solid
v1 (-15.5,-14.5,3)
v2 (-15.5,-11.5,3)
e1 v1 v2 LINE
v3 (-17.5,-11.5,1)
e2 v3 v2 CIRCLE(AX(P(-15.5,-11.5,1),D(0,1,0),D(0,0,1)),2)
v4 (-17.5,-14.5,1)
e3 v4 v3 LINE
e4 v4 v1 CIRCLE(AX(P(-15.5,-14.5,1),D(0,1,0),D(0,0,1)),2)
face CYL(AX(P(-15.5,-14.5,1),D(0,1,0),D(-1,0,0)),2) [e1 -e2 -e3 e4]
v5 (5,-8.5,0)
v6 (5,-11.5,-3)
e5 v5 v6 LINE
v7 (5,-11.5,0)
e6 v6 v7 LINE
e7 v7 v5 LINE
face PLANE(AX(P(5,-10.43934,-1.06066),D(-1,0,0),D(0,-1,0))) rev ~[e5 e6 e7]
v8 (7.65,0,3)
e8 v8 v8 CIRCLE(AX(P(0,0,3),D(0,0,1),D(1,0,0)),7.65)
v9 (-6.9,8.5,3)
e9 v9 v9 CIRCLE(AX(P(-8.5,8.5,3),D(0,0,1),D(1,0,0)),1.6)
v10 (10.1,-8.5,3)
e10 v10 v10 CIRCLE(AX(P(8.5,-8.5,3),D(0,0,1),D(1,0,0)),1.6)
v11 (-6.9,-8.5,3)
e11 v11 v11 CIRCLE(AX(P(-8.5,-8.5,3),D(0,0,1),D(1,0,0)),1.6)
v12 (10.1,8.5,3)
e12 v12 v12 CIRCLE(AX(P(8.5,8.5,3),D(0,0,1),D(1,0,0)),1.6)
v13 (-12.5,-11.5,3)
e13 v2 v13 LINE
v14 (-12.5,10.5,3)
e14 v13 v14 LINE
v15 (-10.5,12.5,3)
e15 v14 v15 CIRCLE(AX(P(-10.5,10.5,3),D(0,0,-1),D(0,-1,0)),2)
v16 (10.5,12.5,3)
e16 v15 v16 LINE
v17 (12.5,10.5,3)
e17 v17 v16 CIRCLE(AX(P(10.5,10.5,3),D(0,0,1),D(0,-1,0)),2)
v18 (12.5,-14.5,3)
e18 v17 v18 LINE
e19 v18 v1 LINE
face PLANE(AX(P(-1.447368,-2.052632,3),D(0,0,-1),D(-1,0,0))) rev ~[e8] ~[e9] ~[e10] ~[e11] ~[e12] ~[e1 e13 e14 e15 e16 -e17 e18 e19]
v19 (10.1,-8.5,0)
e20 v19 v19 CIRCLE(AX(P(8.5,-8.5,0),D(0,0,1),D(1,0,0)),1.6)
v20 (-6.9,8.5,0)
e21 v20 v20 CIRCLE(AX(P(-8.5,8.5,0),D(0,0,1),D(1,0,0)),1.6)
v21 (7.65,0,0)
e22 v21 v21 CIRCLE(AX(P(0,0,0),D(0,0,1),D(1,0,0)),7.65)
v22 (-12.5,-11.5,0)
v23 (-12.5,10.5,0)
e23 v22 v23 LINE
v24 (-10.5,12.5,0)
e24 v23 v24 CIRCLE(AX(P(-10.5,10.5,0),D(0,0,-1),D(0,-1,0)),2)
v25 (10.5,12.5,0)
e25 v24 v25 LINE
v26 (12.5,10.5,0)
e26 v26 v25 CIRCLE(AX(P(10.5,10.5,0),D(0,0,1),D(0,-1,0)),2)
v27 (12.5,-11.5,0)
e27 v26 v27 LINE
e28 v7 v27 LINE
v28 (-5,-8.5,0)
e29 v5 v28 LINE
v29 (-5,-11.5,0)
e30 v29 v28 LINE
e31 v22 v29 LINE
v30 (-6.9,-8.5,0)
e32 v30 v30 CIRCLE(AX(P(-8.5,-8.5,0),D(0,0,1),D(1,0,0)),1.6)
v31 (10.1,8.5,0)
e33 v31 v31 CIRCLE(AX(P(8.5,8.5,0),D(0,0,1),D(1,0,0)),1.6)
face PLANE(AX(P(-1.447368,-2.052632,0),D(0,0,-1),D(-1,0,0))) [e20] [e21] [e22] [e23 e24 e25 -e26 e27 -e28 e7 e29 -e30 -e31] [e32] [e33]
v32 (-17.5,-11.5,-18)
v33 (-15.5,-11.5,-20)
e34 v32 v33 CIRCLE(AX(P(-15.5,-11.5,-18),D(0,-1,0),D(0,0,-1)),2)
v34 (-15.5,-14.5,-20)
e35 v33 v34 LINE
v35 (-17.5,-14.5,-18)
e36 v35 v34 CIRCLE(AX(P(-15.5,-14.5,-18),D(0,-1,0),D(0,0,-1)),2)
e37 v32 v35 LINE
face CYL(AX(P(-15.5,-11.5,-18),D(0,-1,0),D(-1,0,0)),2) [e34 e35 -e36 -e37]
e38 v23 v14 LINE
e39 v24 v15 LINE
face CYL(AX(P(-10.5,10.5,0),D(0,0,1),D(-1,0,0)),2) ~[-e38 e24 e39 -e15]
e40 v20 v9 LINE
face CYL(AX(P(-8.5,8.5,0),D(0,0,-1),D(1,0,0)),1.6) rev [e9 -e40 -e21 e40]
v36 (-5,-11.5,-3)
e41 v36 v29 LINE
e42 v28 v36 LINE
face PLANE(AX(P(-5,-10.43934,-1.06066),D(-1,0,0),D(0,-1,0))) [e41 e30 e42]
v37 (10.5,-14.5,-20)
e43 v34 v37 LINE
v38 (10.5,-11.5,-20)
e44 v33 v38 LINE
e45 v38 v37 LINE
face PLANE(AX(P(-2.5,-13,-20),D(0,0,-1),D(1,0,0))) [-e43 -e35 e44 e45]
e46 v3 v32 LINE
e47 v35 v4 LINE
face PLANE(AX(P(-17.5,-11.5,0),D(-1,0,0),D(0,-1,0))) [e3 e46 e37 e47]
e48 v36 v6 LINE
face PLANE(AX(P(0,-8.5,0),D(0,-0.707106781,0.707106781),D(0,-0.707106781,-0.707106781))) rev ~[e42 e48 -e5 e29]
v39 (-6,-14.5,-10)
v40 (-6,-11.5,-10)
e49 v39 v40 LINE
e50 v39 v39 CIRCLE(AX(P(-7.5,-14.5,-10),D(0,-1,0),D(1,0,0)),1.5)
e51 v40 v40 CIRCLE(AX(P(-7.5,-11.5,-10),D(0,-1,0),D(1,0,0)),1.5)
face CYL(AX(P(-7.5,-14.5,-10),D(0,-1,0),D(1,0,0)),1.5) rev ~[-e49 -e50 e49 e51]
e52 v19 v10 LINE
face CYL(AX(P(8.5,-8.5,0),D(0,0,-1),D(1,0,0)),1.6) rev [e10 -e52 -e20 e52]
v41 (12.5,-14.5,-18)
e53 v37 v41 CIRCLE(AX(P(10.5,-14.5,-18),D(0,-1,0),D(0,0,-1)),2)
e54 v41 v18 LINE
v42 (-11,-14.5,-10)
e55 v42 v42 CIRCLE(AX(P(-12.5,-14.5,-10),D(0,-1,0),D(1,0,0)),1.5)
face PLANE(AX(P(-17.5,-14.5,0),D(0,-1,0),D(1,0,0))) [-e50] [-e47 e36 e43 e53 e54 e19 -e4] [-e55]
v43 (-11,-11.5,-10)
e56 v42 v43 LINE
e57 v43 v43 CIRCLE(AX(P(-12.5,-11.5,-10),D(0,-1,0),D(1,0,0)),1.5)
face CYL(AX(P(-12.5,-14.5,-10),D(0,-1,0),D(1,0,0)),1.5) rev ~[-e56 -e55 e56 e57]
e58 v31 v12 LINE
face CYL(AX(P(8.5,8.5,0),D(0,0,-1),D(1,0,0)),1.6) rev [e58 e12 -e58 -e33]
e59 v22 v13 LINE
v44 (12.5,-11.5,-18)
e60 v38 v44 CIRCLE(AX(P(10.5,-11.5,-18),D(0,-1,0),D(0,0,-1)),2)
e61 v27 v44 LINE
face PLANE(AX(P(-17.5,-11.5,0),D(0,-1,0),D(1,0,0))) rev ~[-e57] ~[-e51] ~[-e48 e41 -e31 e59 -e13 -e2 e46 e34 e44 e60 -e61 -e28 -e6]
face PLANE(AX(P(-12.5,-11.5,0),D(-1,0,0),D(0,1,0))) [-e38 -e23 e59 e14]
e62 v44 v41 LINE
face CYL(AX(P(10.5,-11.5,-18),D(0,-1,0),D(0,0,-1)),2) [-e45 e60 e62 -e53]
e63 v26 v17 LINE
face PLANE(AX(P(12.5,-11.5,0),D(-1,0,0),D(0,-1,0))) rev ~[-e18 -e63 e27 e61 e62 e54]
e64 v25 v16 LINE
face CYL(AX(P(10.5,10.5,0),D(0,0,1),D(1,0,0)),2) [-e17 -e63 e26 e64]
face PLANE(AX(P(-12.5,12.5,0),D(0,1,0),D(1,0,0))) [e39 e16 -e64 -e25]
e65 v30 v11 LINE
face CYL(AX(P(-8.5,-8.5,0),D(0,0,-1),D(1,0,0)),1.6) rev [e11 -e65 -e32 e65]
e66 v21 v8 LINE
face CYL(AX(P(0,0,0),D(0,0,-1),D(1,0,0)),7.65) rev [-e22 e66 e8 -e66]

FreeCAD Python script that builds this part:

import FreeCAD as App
import Part
import Sketcher

V = App.Vector


def edges_at(feature, points):
    """Names of the edges that pass closest to the given points."""
    edges = feature.Shape.Edges
    near = lambda p: min(range(len(edges)), key=lambda i: edges[i].distToShape(Part.Vertex(*p))[0])
    return sorted({f"Edge{near(p) + 1}" for p in points})

doc = App.newDocument("Part")
params = doc.addObject("Spreadsheet::Sheet", "Params")
for row, (alias, value) in enumerate([
    ("sketch1_diameter", "3.2 mm"),
    ("sketch1_diameter2", "15.3 mm"),
    ("sketch1_width", "5 mm"),
    ("sketch1_width2", "30 mm"),
    ("sketch1_height", "24 mm"),
    ("pad1_length", "3 mm"),
    ("sketch2_width", "30 mm"),
    ("sketch2_height", "3 mm"),
    ("pad2_length", "20 mm"),
    ("sketch3_diameter", "3 mm"),
    ("sketch4_width", "3 mm"),
    ("pad3_length", "10 mm"),
    ("fillet_radius", "2 mm"),
    ("fillet2_radius", "2 mm"),
    ("fillet3_radius", "2 mm"),
], start=1):
    params.set(f"A{row}", alias)
    params.set(f"B{row}", "=" + value)
    params.setAlias(f"B{row}", alias)

body = doc.addObject("PartDesign::Body", "Body")

# Sketch on XY plane
sketch1 = body.newObject("Sketcher::SketchObject", "Sketch")
sketch1.AttachmentSupport = (doc.getObject("XY_Plane"), [""])
sketch1.MapMode = "FlatFace"
sketch1.addGeometry([
    Part.LineSegment(V(-12.5, 12.5, 0), V(-12.5, -11.5, 0)),  # 0
    Part.LineSegment(V(-12.5, -11.5, 0), V(-17.5, -11.5, 0)),  # 1
    Part.LineSegment(V(-17.5, -11.5, 0), V(-17.5, -14.5, 0)),  # 2
    Part.LineSegment(V(-17.5, -14.5, 0), V(12.5, -14.5, 0)),  # 3
    Part.LineSegment(V(12.5, -14.5, 0), V(12.5, 12.5, 0)),  # 4
    Part.LineSegment(V(12.5, 12.5, 0), V(-12.5, 12.5, 0)),  # 5
    Part.Circle(V(8.5, -8.5, 0), V(0, 0, 1), 1.6),  # 6
    Part.Circle(V(-8.5, -8.5, 0), V(0, 0, 1), 1.6),  # 7
    Part.Circle(V(8.5, 8.5, 0), V(0, 0, 1), 1.6),  # 8
    Part.Circle(V(0, 0, 0), V(0, 0, 1), 7.7),  # 9
    Part.Circle(V(-8.5, 8.5, 0), V(0, 0, 1), 1.6),  # 10
], False)
sketch1.addConstraint([
    Sketcher.Constraint("Coincident", 0, 2, 1, 1),
    Sketcher.Constraint("Coincident", 1, 2, 2, 1),
    Sketcher.Constraint("Coincident", 2, 2, 3, 1),
    Sketcher.Constraint("Coincident", 3, 2, 4, 1),
    Sketcher.Constraint("Coincident", 4, 2, 5, 1),
    Sketcher.Constraint("Coincident", 5, 2, 0, 1),
    Sketcher.Constraint("Vertical", 0),
    Sketcher.Constraint("Horizontal", 1),
    Sketcher.Constraint("Vertical", 2),
    Sketcher.Constraint("Horizontal", 3),
    Sketcher.Constraint("Vertical", 4),
    Sketcher.Constraint("Horizontal", 5),
    Sketcher.Constraint("Coincident", 9, 3, -1, 1),
    Sketcher.Constraint("Equal", 6, 7),
    Sketcher.Constraint("Equal", 7, 8),
    Sketcher.Constraint("Equal", 8, 10),
    Sketcher.Constraint("Symmetric", 7, 3, 8, 3, -1, 1),
    Sketcher.Constraint("Symmetric", 6, 3, 10, 3, -1, 1),
    Sketcher.Constraint("Symmetric", 6, 3, 7, 3, -2),
    Sketcher.Constraint("Diameter", 6, 3.2),
    Sketcher.Constraint("Diameter", 9, 15.3),
    Sketcher.Constraint("DistanceX", 1, 2, 1, 1, 5.0),
    Sketcher.Constraint("DistanceX", 3, 1, 3, 2, 30.0),
    Sketcher.Constraint("DistanceY", 0, 2, 0, 1, 24.0),
    Sketcher.Constraint("DistanceY", 2, 2, 2, 1, 3.0),
    Sketcher.Constraint("DistanceX", 7, 3, 6, 3, 17.0),
    Sketcher.Constraint("DistanceY", 6, 3, 8, 3, 17.0),
    Sketcher.Constraint("DistanceX", 0, 2, 7, 3, 4.0),
    Sketcher.Constraint("DistanceY", 0, 2, 7, 3, 3.0),
])
sketch1.setExpression("Constraints[19]", "Params.sketch1_diameter")
sketch1.setExpression("Constraints[20]", "Params.sketch1_diameter2")
sketch1.setExpression("Constraints[21]", "Params.sketch1_width")
sketch1.setExpression("Constraints[22]", "Params.sketch1_width2")
sketch1.setExpression("Constraints[23]", "Params.sketch1_height")
pad1 = body.newObject("PartDesign::Pad", "Pad")
pad1.Profile = sketch1
pad1.setExpression("Length", "Params.pad1_length")

# Sketch on XY plane
sketch2 = body.newObject("Sketcher::SketchObject", "Sketch001")
sketch2.AttachmentSupport = (doc.getObject("XY_Plane"), [""])
sketch2.MapMode = "FlatFace"
sketch2.addGeometry([
    Part.LineSegment(V(-17.5, -14.5, 0), V(-17.5, -11.5, 0)),
    Part.LineSegment(V(-17.5, -11.5, 0), V(12.5, -11.5, 0)),
    Part.LineSegment(V(12.5, -11.5, 0), V(12.5, -14.5, 0)),
    Part.LineSegment(V(12.5, -14.5, 0), V(-17.5, -14.5, 0)),
], False)
sketch2.addConstraint([
    Sketcher.Constraint("Coincident", 0, 2, 1, 1),
    Sketcher.Constraint("Coincident", 1, 2, 2, 1),
    Sketcher.Constraint("Coincident", 2, 2, 3, 1),
    Sketcher.Constraint("Coincident", 3, 2, 0, 1),
    Sketcher.Constraint("Vertical", 0),
    Sketcher.Constraint("Horizontal", 1),
    Sketcher.Constraint("Vertical", 2),
    Sketcher.Constraint("Horizontal", 3),
    Sketcher.Constraint("DistanceX", 1, 1, 1, 2, 30.0),
    Sketcher.Constraint("DistanceY", 0, 1, 0, 2, 3.0),
    Sketcher.Constraint("DistanceX", 0, 2, -1, 1, 17.5),
    Sketcher.Constraint("DistanceY", 0, 2, -1, 1, 11.5),
])
sketch2.setExpression("Constraints[8]", "Params.sketch2_width")
sketch2.setExpression("Constraints[9]", "Params.sketch2_height")
pad2 = body.newObject("PartDesign::Pad", "Pad001")
pad2.Profile = sketch2
pad2.setExpression("Length", "Params.pad2_length")
pad2.Reversed = True

# Sketch on XZ plane
sketch3 = body.newObject("Sketcher::SketchObject", "Sketch002")
sketch3.AttachmentSupport = (doc.getObject("XZ_Plane"), [""])
sketch3.MapMode = "FlatFace"
sketch3.AttachmentOffset = App.Placement(V(0, 0, 14.5), App.Rotation())
sketch3.addGeometry([
    Part.Circle(V(-12.5, -10, 0), V(0, 0, 1), 1.5),
    Part.Circle(V(-7.5, -10, 0), V(0, 0, 1), 1.5),
], False)
sketch3.addConstraint([
    Sketcher.Constraint("Equal", 0, 1),
    Sketcher.Constraint("Horizontal", 0, 3, 1, 3),
    Sketcher.Constraint("Diameter", 0, 3.0),
    Sketcher.Constraint("DistanceY", 0, 3, -1, 1, 10.0),
    Sketcher.Constraint("DistanceX", 0, 3, 1, 3, 5.0),
    Sketcher.Constraint("DistanceX", 0, 3, -1, 1, 12.5),
])
sketch3.setExpression("Constraints[2]", "Params.sketch3_diameter")
pocket1 = body.newObject("PartDesign::Pocket", "Pocket")
pocket1.Profile = sketch3
pocket1.Type = "ThroughAll"

# Sketch on YZ plane
sketch4 = body.newObject("Sketcher::SketchObject", "Sketch003")
sketch4.AttachmentSupport = (doc.getObject("YZ_Plane"), [""])
sketch4.MapMode = "FlatFace"
sketch4.addGeometry([
    Part.LineSegment(V(-8.5, 0, 0), V(-11.5, 0, 0)),
    Part.LineSegment(V(-11.5, 0, 0), V(-11.5, -3, 0)),
    Part.LineSegment(V(-11.5, -3, 0), V(-8.5, 0, 0)),
], False)
sketch4.addConstraint([
    Sketcher.Constraint("Coincident", 0, 2, 1, 1),
    Sketcher.Constraint("Coincident", 1, 2, 2, 1),
    Sketcher.Constraint("Coincident", 2, 2, 0, 1),
    Sketcher.Constraint("Horizontal", 0),
    Sketcher.Constraint("Vertical", 1),
    Sketcher.Constraint("PointOnObject", 0, 2, -1),
    Sketcher.Constraint("Equal", 0, 1),
    Sketcher.Constraint("DistanceX", 0, 2, 0, 1, 3.0),
    Sketcher.Constraint("DistanceX", 0, 2, -1, 1, 11.5),
])
sketch4.setExpression("Constraints[7]", "Params.sketch4_width")
pad3 = body.newObject("PartDesign::Pad", "Pad002")
pad3.Profile = sketch4
pad3.setExpression("Length", "Params.pad3_length")
pad3.Midplane = True
doc.recompute()

fillet = body.newObject("PartDesign::Fillet", "Fillet")
fillet.Base = (pad3, edges_at(pad3, [(-17.5, -13, 3)]))
fillet.setExpression("Radius", "Params.fillet_radius")
doc.recompute()

fillet2 = body.newObject("PartDesign::Fillet", "Fillet001")
fillet2.Base = (fillet, edges_at(fillet, [(12.5, -13, -20), (-17.5, -13, -20)]))
fillet2.setExpression("Radius", "Params.fillet2_radius")
doc.recompute()

fillet3 = body.newObject("PartDesign::Fillet", "Fillet002")
fillet3.Base = (fillet2, edges_at(fillet2, [(12.5, 12.5, 1.5), (-12.5, 12.5, 1.5)]))
fillet3.setExpression("Radius", "Params.fillet3_radius")

doc.recompute()
